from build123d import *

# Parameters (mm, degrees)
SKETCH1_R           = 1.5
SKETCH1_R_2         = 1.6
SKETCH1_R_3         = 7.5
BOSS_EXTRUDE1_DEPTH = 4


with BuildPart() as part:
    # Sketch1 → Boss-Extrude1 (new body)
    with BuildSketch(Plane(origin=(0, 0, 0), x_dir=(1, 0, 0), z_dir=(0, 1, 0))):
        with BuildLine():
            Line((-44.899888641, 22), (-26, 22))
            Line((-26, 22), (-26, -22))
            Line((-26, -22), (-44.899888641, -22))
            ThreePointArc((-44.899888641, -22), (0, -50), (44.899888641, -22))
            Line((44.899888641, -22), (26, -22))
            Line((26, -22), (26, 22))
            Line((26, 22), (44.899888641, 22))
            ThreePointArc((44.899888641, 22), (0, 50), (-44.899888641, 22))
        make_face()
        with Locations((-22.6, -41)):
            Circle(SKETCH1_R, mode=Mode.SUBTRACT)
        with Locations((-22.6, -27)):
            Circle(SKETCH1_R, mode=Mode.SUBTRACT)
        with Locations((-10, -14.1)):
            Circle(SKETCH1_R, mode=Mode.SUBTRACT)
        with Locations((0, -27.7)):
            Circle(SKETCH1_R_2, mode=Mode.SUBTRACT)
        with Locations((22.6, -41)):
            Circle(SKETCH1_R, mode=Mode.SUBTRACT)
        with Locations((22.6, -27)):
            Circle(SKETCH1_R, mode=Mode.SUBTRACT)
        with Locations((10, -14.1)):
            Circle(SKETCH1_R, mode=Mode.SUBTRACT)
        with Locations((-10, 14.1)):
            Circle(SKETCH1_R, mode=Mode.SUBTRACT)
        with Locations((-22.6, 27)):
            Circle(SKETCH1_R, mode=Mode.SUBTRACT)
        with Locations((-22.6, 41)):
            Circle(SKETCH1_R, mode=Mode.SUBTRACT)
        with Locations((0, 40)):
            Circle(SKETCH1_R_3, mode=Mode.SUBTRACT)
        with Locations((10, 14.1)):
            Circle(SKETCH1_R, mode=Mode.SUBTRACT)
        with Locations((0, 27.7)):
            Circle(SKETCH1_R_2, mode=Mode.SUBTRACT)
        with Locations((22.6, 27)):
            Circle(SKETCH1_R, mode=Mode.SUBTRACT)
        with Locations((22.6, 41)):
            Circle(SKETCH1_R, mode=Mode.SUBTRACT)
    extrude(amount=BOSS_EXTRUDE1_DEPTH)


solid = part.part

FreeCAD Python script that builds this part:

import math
import FreeCAD as App
import Part
import Sketcher

V = App.Vector
Q = App.Units.Quantity

doc = App.newDocument("Part")
body = doc.addObject("PartDesign::Body", "Body")

sketch1 = body.newObject("Sketcher::SketchObject", "Sketch")
sketch1.AttachmentSupport = (doc.getObject("XZ_Plane"), [""])
sketch1.MapMode = "FlatFace"
sketch1.addGeometry(Part.LineSegment(V(-44.9, -22, 0), V(-26, -22, 0)), False)
sketch1.addGeometry(Part.LineSegment(V(-26, -22, 0), V(-26, 22, 0)), False)
sketch1.addGeometry(Part.LineSegment(V(-26, 22, 0), V(-44.9, 22, 0)), False)
sketch1.addGeometry(Part.ArcOfCircle(Part.Circle(V(0, 0, 0), V(0, 0, 1), 50), math.radians(26), math.radians(154)), False)
sketch1.addGeometry(Part.LineSegment(V(44.9, 22, 0), V(26, 22, 0)), False)
sketch1.addGeometry(Part.LineSegment(V(26, 22, 0), V(26, -22, 0)), False)
sketch1.addGeometry(Part.LineSegment(V(26, -22, 0), V(44.9, -22, 0)), False)
sketch1.addGeometry(Part.ArcOfCircle(Part.Circle(V(0, 0, 0), V(0, 0, 1), 50), math.radians(-154), math.radians(-26)), False)
sketch1.addGeometry(Part.Circle(V(-22.6, 41, 0), V(0, 0, 1), 1.5), False)
sketch1.addGeometry(Part.Circle(V(-22.6, 27, 0), V(0, 0, 1), 1.5), False)
sketch1.addGeometry(Part.Circle(V(-10, 14.1, 0), V(0, 0, 1), 1.5), False)
sketch1.addGeometry(Part.Circle(V(0, 27.7, 0), V(0, 0, 1), 1.6), False)
sketch1.addGeometry(Part.Circle(V(22.6, 41, 0), V(0, 0, 1), 1.5), False)
sketch1.addGeometry(Part.Circle(V(22.6, 27, 0), V(0, 0, 1), 1.5), False)
sketch1.addGeometry(Part.Circle(V(10, 14.1, 0), V(0, 0, 1), 1.5), False)
sketch1.addGeometry(Part.Circle(V(-10, -14.1, 0), V(0, 0, 1), 1.5), False)
sketch1.addGeometry(Part.Circle(V(-22.6, -27, 0), V(0, 0, 1), 1.5), False)
sketch1.addGeometry(Part.Circle(V(-22.6, -41, 0), V(0, 0, 1), 1.5), False)
sketch1.addGeometry(Part.Circle(V(10, -14.1, 0), V(0, 0, 1), 1.5), False)
sketch1.addGeometry(Part.Circle(V(0, -27.7, 0), V(0, 0, 1), 1.6), False)
sketch1.addGeometry(Part.Circle(V(0, -40, 0), V(0, 0, 1), 7.5), False)
sketch1.addGeometry(Part.Circle(V(22.6, -27, 0), V(0, 0, 1), 1.5), False)
sketch1.addGeometry(Part.Circle(V(22.6, -41, 0), V(0, 0, 1), 1.5), False)
sketch1.addConstraint(Sketcher.Constraint("Coincident", 0, 2, 1, 1))
sketch1.addConstraint(Sketcher.Constraint("Coincident", 1, 2, 2, 1))
sketch1.addConstraint(Sketcher.Constraint("Coincident", 2, 2, 3, 2))
sketch1.addConstraint(Sketcher.Constraint("Coincident", 3, 1, 4, 1))
sketch1.addConstraint(Sketcher.Constraint("Coincident", 4, 2, 5, 1))
sketch1.addConstraint(Sketcher.Constraint("Coincident", 5, 2, 6, 1))
sketch1.addConstraint(Sketcher.Constraint("Coincident", 6, 2, 7, 2))
sketch1.addConstraint(Sketcher.Constraint("Coincident", 7, 1, 0, 1))
sketch1.addConstraint(Sketcher.Constraint("Horizontal", 0))
sketch1.addConstraint(Sketcher.Constraint("Vertical", 1))
sketch1.addConstraint(Sketcher.Constraint("Horizontal", 2))
sketch1.addConstraint(Sketcher.Constraint("Horizontal", 4))
sketch1.addConstraint(Sketcher.Constraint("Vertical", 5))
sketch1.addConstraint(Sketcher.Constraint("Horizontal", 6))
sketch1.addConstraint(Sketcher.Constraint("Coincident", 3, 3, -1, 1))
sketch1.addConstraint(Sketcher.Constraint("Coincident", 7, 3, -1, 1))
sketch1.addConstraint(Sketcher.Constraint("Equal", 3, 7))
sketch1.addConstraint(Sketcher.Constraint("Equal", 8, 9))
sketch1.addConstraint(Sketcher.Constraint("Equal", 9, 10))
sketch1.addConstraint(Sketcher.Constraint("Equal", 10, 12))
sketch1.addConstraint(Sketcher.Constraint("Equal", 12, 13))
sketch1.addConstraint(Sketcher.Constraint("Equal", 13, 14))
sketch1.addConstraint(Sketcher.Constraint("Equal", 14, 15))
sketch1.addConstraint(Sketcher.Constraint("Equal", 15, 16))
sketch1.addConstraint(Sketcher.Constraint("Equal", 16, 17))
sketch1.addConstraint(Sketcher.Constraint("Equal", 17, 18))
sketch1.addConstraint(Sketcher.Constraint("Equal", 11, 19))
sketch1.addConstraint(Sketcher.Constraint("Equal", 18, 21))
sketch1.addConstraint(Sketcher.Constraint("Equal", 21, 22))
sketch1.addConstraint(Sketcher.Constraint("Symmetric", 14, 3, 15, 3, -1, 1))
sketch1.addConstraint(Sketcher.Constraint("Symmetric", 13, 3, 16, 3, -1, 1))
sketch1.addConstraint(Sketcher.Constraint("Symmetric", 12, 3, 17, 3, -1, 1))
sketch1.addConstraint(Sketcher.Constraint("Symmetric", 10, 3, 18, 3, -1, 1))
sketch1.addConstraint(Sketcher.Constraint("Symmetric", 11, 3, 19, 3, -1, 1))
sketch1.addConstraint(Sketcher.Constraint("Symmetric", 9, 3, 21, 3, -1, 1))
sketch1.addConstraint(Sketcher.Constraint("Symmetric", 8, 3, 22, 3, -1, 1))
sketch1.addConstraint(Sketcher.Constraint("Symmetric", 0, 2, 4, 2, -1, 1))
sketch1.addConstraint(Sketcher.Constraint("Symmetric", 8, 3, 12, 3, -2))
sketch1.addConstraint(Sketcher.Constraint("Symmetric", 9, 3, 13, 3, -2))
sketch1.addConstraint(Sketcher.Constraint("Symmetric", 10, 3, 14, 3, -2))
sketch1.addConstraint(Sketcher.Constraint("PointOnObject", 11, 3, -2))
sketch1.addConstraint(Sketcher.Constraint("PointOnObject", 20, 3, -2))
sketch1.addConstraint(Sketcher.Constraint("Horizontal", 2, 2, 3, 1))
sketch1.addConstraint(Sketcher.Constraint("Horizontal", 0, 2, 5, 2))
sketch1.addConstraint(Sketcher.Constraint("Vertical", 8, 3, 9, 3))
sketch1.addConstraint(Sketcher.Constraint("Diameter", 8, Q("3 mm")))
sketch1.addConstraint(Sketcher.Constraint("Diameter", 20, Q("15 mm")))
sketch1.addConstraint(Sketcher.Constraint("Radius", 3, Q("50 mm")))
sketch1.addConstraint(Sketcher.Constraint("Diameter", 11, Q("3.2 mm")))
sketch1.addConstraint(Sketcher.Constraint("DistanceY", 1, 1, 1, 2, Q("44 mm")))
sketch1.addConstraint(Sketcher.Constraint("DistanceY", -1, 1, 8, 3, Q("41 mm")))
sketch1.addConstraint(Sketcher.Constraint("DistanceY", -1, 1, 9, 3, Q("27 mm")))
sketch1.addConstraint(Sketcher.Constraint("DistanceX", 10, 3, -1, 1, Q("10 mm")))
sketch1.addConstraint(Sketcher.Constraint("DistanceY", 20, 3, -1, 1, Q("40 mm")))
sketch1.addConstraint(Sketcher.Constraint("DistanceX", 0, 2, -1, 1, Q("26 mm")))
sketch1.addConstraint(Sketcher.Constraint("DistanceX", 8, 3, -1, 1, Q("22.6 mm")))
sketch1.addConstraint(Sketcher.Constraint("DistanceY", -1, 1, 10, 3, Q("14.1 mm")))
sketch1.addConstraint(Sketcher.Constraint("DistanceY", -1, 1, 11, 3, Q("27.7 mm")))
pad1 = body.newObject("PartDesign::Pad", "Pad")
pad1.Profile = sketch1
pad1.Length = 4
pad1.Reversed = True

doc.recompute()
